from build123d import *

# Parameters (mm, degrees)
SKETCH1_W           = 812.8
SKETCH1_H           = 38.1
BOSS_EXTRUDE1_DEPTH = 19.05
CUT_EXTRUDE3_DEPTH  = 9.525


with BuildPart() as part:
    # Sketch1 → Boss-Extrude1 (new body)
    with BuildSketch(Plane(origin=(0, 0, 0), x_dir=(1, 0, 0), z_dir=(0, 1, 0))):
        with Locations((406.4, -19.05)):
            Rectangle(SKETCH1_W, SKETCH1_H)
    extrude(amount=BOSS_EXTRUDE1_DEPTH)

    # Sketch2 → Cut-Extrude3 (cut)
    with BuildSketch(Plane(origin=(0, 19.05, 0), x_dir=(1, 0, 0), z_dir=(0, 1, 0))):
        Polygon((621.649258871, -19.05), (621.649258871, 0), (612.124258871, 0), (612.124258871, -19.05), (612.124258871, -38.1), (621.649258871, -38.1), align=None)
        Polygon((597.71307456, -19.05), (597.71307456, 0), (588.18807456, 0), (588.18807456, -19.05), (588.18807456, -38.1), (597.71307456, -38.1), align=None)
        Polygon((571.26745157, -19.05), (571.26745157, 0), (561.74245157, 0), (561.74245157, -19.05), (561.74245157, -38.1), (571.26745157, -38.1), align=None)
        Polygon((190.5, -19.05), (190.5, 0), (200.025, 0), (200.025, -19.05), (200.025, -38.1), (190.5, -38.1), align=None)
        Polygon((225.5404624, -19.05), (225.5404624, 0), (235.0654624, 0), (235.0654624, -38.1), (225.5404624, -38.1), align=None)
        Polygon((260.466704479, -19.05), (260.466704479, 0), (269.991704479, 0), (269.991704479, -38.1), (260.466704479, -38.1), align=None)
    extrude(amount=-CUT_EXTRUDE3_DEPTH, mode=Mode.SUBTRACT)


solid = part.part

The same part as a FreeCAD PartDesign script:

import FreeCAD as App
import Part
import Sketcher
Q = App.Units.Quantity

doc = App.newDocument("Part")
body = doc.addObject("PartDesign::Body", "Body")

# Sketch on XZ plane
sketch1 = body.newObject("Sketcher::SketchObject", "Sketch")
sketch1.AttachmentSupport = (doc.getObject("XZ_Plane"), [""])
sketch1.MapMode = "FlatFace"
sketch1.addGeometry([
    Part.LineSegment(App.Vector(0, 0, 0), App.Vector(0, 38, 0)),
    Part.LineSegment(App.Vector(0, 38, 0), App.Vector(813, 38, 0)),
    Part.LineSegment(App.Vector(813, 38, 0), App.Vector(813, 0, 0)),
    Part.LineSegment(App.Vector(813, 0, 0), App.Vector(0, 0, 0)),
], False)
sketch1.addConstraint([
    Sketcher.Constraint("Coincident", 0, 2, 1, 1),
    Sketcher.Constraint("Coincident", 1, 2, 2, 1),
    Sketcher.Constraint("Coincident", 2, 2, 3, 1),
    Sketcher.Constraint("Coincident", 3, 2, 0, 1),
    Sketcher.Constraint("Vertical", 0),
    Sketcher.Constraint("Horizontal", 1),
    Sketcher.Constraint("Vertical", 2),
    Sketcher.Constraint("Horizontal", 3),
    Sketcher.Constraint("Coincident", 3, 2, -1, 1),
    Sketcher.Constraint("DistanceX", 1, 1, 1, 2, Q("32 in")),
    Sketcher.Constraint("DistanceY", 0, 1, 0, 2, Q("1.5 in")),
])
pad1 = body.newObject("PartDesign::Pad", "Pad")
pad1.Profile = sketch1
pad1.Length = Q("0.75 in")
pad1.Reversed = True

# Sketch on XZ plane
sketch2 = body.newObject("Sketcher::SketchObject", "Sketch001")
sketch2.AttachmentSupport = (doc.getObject("XZ_Plane"), [""])
sketch2.MapMode = "FlatFace"
sketch2.AttachmentOffset = App.Placement(App.Vector(0, 0, -0.75 * 25.4), App.Rotation())
sketch2.addGeometry([
    Part.LineSegment(App.Vector(622, 0, 0), App.Vector(612, 0, 0)),  # 0
    Part.LineSegment(App.Vector(612, 0, 0), App.Vector(612, 38, 0)),  # 1
    Part.LineSegment(App.Vector(612, 38, 0), App.Vector(622, 38, 0)),  # 2
    Part.LineSegment(App.Vector(622, 38, 0), App.Vector(622, 0, 0)),  # 3
    Part.LineSegment(App.Vector(598, 0, 0), App.Vector(588, 0, 0)),  # 4
    Part.LineSegment(App.Vector(588, 0, 0), App.Vector(588, 38, 0)),  # 5
    Part.LineSegment(App.Vector(588, 38, 0), App.Vector(598, 38, 0)),  # 6
    Part.LineSegment(App.Vector(598, 38, 0), App.Vector(598, 0, 0)),  # 7
    Part.LineSegment(App.Vector(571, 0, 0), App.Vector(562, 0, 0)),  # 8
    Part.LineSegment(App.Vector(562, 0, 0), App.Vector(562, 38, 0)),  # 9
    Part.LineSegment(App.Vector(562, 38, 0), App.Vector(571, 38, 0)),  # 10
    Part.LineSegment(App.Vector(571, 38, 0), App.Vector(571, 0, 0)),  # 11
    Part.LineSegment(App.Vector(190, 0, 0), App.Vector(190, 38, 0)),  # 12
    Part.LineSegment(App.Vector(190, 38, 0), App.Vector(200, 38, 0)),  # 13
    Part.LineSegment(App.Vector(200, 38, 0), App.Vector(200, 0, 0)),  # 14
    Part.LineSegment(App.Vector(200, 0, 0), App.Vector(190, 0, 0)),  # 15
    Part.LineSegment(App.Vector(226, 0, 0), App.Vector(226, 38, 0)),  # 16
    Part.LineSegment(App.Vector(226, 38, 0), App.Vector(235, 38, 0)),  # 17
    Part.LineSegment(App.Vector(235, 38, 0), App.Vector(235, 0, 0)),  # 18
    Part.LineSegment(App.Vector(235, 0, 0), App.Vector(226, 0, 0)),  # 19
    Part.LineSegment(App.Vector(260, 0, 0), App.Vector(260, 38, 0)),  # 20
    Part.LineSegment(App.Vector(260, 38, 0), App.Vector(270, 38, 0)),  # 21
    Part.LineSegment(App.Vector(270, 38, 0), App.Vector(270, 0, 0)),  # 22
    Part.LineSegment(App.Vector(270, 0, 0), App.Vector(260, 0, 0)),  # 23
], False)
sketch2.addConstraint([
    Sketcher.Constraint("Coincident", 0, 2, 1, 1),
    Sketcher.Constraint("Coincident", 1, 2, 2, 1),
    Sketcher.Constraint("Coincident", 2, 2, 3, 1),
    Sketcher.Constraint("Coincident", 3, 2, 0, 1),
    Sketcher.Constraint("Coincident", 4, 2, 5, 1),
    Sketcher.Constraint("Coincident", 5, 2, 6, 1),
    Sketcher.Constraint("Coincident", 6, 2, 7, 1),
    Sketcher.Constraint("Coincident", 7, 2, 4, 1),
    Sketcher.Constraint("Coincident", 8, 2, 9, 1),
    Sketcher.Constraint("Coincident", 9, 2, 10, 1),
    Sketcher.Constraint("Coincident", 10, 2, 11, 1),
    Sketcher.Constraint("Coincident", 11, 2, 8, 1),
    Sketcher.Constraint("Coincident", 12, 2, 13, 1),
    Sketcher.Constraint("Coincident", 13, 2, 14, 1),
    Sketcher.Constraint("Coincident", 14, 2, 15, 1),
    Sketcher.Constraint("Coincident", 15, 2, 12, 1),
    Sketcher.Constraint("Coincident", 16, 2, 17, 1),
    Sketcher.Constraint("Coincident", 17, 2, 18, 1),
    Sketcher.Constraint("Coincident", 18, 2, 19, 1),
    Sketcher.Constraint("Coincident", 19, 2, 16, 1),
    Sketcher.Constraint("Coincident", 20, 2, 21, 1),
    Sketcher.Constraint("Coincident", 21, 2, 22, 1),
    Sketcher.Constraint("Coincident", 22, 2, 23, 1),
    Sketcher.Constraint("Coincident", 23, 2, 20, 1),
    Sketcher.Constraint("Horizontal", 0),
    Sketcher.Constraint("Vertical", 1),
    Sketcher.Constraint("Horizontal", 2),
    Sketcher.Constraint("Vertical", 3),
    Sketcher.Constraint("Horizontal", 4),
    Sketcher.Constraint("Vertical", 5),
    Sketcher.Constraint("Horizontal", 6),
    Sketcher.Constraint("Vertical", 7),
    Sketcher.Constraint("Horizontal", 8),
    Sketcher.Constraint("Vertical", 9),
    Sketcher.Constraint("Horizontal", 10),
    Sketcher.Constraint("Vertical", 11),
    Sketcher.Constraint("Vertical", 12),
    Sketcher.Constraint("Horizontal", 13),
    Sketcher.Constraint("Vertical", 14),
    Sketcher.Constraint("Horizontal", 15),
    Sketcher.Constraint("Vertical", 16),
    Sketcher.Constraint("Horizontal", 17),
    Sketcher.Constraint("Vertical", 18),
    Sketcher.Constraint("Horizontal", 19),
    Sketcher.Constraint("Vertical", 20),
    Sketcher.Constraint("Horizontal", 21),
    Sketcher.Constraint("Vertical", 22),
    Sketcher.Constraint("Horizontal", 23),
    Sketcher.Constraint("PointOnObject", 0, 2, -1),
    Sketcher.Constraint("PointOnObject", 4, 2, -1),
    Sketcher.Constraint("PointOnObject", 8, 2, -1),
    Sketcher.Constraint("PointOnObject", 14, 2, -1),
    Sketcher.Constraint("PointOnObject", 18, 2, -1),
    Sketcher.Constraint("PointOnObject", 22, 2, -1),
    Sketcher.Constraint("Horizontal", 2, 2, 5, 2),
    Sketcher.Constraint("Horizontal", 6, 2, 9, 2),
    Sketcher.Constraint("Horizontal", 10, 2, 12, 2),
    Sketcher.Constraint("Horizontal", 13, 2, 16, 2),
    Sketcher.Constraint("Horizontal", 17, 2, 20, 2),
    Sketcher.Constraint("Equal", 2, 4),
    Sketcher.Constraint("Equal", 6, 8),
    Sketcher.Constraint("Equal", 10, 13),
    Sketcher.Constraint("Equal", 15, 17),
    Sketcher.Constraint("Equal", 19, 21),
    Sketcher.Constraint("DistanceY", 1, 1, 1, 2, Q("1.5 in")),
    Sketcher.Constraint("DistanceX", -1, 1, 12, 2, Q("7.5 in")),
    Sketcher.Constraint("DistanceX", 0, 2, 0, 1, Q("0.375 in")),
    Sketcher.Constraint("DistanceX", -1, 1, 0, 2, Q("612.124259 mm")),
    Sketcher.Constraint("DistanceX", -1, 1, 8, 2, Q("561.742452 mm")),
    Sketcher.Constraint("DistanceX", 16, 2, 9, 2, Q("336.201989 mm")),
    Sketcher.Constraint("DistanceX", -1, 1, 4, 2, Q("588.188075 mm")),
    Sketcher.Constraint("DistanceX", -1, 1, 20, 2, Q("260.466704 mm")),
])
pocket1 = body.newObject("PartDesign::Pocket", "Pocket")
pocket1.Profile = sketch2
pocket1.Length = Q("0.375 in")
pocket1.Reversed = True

doc.recompute()
